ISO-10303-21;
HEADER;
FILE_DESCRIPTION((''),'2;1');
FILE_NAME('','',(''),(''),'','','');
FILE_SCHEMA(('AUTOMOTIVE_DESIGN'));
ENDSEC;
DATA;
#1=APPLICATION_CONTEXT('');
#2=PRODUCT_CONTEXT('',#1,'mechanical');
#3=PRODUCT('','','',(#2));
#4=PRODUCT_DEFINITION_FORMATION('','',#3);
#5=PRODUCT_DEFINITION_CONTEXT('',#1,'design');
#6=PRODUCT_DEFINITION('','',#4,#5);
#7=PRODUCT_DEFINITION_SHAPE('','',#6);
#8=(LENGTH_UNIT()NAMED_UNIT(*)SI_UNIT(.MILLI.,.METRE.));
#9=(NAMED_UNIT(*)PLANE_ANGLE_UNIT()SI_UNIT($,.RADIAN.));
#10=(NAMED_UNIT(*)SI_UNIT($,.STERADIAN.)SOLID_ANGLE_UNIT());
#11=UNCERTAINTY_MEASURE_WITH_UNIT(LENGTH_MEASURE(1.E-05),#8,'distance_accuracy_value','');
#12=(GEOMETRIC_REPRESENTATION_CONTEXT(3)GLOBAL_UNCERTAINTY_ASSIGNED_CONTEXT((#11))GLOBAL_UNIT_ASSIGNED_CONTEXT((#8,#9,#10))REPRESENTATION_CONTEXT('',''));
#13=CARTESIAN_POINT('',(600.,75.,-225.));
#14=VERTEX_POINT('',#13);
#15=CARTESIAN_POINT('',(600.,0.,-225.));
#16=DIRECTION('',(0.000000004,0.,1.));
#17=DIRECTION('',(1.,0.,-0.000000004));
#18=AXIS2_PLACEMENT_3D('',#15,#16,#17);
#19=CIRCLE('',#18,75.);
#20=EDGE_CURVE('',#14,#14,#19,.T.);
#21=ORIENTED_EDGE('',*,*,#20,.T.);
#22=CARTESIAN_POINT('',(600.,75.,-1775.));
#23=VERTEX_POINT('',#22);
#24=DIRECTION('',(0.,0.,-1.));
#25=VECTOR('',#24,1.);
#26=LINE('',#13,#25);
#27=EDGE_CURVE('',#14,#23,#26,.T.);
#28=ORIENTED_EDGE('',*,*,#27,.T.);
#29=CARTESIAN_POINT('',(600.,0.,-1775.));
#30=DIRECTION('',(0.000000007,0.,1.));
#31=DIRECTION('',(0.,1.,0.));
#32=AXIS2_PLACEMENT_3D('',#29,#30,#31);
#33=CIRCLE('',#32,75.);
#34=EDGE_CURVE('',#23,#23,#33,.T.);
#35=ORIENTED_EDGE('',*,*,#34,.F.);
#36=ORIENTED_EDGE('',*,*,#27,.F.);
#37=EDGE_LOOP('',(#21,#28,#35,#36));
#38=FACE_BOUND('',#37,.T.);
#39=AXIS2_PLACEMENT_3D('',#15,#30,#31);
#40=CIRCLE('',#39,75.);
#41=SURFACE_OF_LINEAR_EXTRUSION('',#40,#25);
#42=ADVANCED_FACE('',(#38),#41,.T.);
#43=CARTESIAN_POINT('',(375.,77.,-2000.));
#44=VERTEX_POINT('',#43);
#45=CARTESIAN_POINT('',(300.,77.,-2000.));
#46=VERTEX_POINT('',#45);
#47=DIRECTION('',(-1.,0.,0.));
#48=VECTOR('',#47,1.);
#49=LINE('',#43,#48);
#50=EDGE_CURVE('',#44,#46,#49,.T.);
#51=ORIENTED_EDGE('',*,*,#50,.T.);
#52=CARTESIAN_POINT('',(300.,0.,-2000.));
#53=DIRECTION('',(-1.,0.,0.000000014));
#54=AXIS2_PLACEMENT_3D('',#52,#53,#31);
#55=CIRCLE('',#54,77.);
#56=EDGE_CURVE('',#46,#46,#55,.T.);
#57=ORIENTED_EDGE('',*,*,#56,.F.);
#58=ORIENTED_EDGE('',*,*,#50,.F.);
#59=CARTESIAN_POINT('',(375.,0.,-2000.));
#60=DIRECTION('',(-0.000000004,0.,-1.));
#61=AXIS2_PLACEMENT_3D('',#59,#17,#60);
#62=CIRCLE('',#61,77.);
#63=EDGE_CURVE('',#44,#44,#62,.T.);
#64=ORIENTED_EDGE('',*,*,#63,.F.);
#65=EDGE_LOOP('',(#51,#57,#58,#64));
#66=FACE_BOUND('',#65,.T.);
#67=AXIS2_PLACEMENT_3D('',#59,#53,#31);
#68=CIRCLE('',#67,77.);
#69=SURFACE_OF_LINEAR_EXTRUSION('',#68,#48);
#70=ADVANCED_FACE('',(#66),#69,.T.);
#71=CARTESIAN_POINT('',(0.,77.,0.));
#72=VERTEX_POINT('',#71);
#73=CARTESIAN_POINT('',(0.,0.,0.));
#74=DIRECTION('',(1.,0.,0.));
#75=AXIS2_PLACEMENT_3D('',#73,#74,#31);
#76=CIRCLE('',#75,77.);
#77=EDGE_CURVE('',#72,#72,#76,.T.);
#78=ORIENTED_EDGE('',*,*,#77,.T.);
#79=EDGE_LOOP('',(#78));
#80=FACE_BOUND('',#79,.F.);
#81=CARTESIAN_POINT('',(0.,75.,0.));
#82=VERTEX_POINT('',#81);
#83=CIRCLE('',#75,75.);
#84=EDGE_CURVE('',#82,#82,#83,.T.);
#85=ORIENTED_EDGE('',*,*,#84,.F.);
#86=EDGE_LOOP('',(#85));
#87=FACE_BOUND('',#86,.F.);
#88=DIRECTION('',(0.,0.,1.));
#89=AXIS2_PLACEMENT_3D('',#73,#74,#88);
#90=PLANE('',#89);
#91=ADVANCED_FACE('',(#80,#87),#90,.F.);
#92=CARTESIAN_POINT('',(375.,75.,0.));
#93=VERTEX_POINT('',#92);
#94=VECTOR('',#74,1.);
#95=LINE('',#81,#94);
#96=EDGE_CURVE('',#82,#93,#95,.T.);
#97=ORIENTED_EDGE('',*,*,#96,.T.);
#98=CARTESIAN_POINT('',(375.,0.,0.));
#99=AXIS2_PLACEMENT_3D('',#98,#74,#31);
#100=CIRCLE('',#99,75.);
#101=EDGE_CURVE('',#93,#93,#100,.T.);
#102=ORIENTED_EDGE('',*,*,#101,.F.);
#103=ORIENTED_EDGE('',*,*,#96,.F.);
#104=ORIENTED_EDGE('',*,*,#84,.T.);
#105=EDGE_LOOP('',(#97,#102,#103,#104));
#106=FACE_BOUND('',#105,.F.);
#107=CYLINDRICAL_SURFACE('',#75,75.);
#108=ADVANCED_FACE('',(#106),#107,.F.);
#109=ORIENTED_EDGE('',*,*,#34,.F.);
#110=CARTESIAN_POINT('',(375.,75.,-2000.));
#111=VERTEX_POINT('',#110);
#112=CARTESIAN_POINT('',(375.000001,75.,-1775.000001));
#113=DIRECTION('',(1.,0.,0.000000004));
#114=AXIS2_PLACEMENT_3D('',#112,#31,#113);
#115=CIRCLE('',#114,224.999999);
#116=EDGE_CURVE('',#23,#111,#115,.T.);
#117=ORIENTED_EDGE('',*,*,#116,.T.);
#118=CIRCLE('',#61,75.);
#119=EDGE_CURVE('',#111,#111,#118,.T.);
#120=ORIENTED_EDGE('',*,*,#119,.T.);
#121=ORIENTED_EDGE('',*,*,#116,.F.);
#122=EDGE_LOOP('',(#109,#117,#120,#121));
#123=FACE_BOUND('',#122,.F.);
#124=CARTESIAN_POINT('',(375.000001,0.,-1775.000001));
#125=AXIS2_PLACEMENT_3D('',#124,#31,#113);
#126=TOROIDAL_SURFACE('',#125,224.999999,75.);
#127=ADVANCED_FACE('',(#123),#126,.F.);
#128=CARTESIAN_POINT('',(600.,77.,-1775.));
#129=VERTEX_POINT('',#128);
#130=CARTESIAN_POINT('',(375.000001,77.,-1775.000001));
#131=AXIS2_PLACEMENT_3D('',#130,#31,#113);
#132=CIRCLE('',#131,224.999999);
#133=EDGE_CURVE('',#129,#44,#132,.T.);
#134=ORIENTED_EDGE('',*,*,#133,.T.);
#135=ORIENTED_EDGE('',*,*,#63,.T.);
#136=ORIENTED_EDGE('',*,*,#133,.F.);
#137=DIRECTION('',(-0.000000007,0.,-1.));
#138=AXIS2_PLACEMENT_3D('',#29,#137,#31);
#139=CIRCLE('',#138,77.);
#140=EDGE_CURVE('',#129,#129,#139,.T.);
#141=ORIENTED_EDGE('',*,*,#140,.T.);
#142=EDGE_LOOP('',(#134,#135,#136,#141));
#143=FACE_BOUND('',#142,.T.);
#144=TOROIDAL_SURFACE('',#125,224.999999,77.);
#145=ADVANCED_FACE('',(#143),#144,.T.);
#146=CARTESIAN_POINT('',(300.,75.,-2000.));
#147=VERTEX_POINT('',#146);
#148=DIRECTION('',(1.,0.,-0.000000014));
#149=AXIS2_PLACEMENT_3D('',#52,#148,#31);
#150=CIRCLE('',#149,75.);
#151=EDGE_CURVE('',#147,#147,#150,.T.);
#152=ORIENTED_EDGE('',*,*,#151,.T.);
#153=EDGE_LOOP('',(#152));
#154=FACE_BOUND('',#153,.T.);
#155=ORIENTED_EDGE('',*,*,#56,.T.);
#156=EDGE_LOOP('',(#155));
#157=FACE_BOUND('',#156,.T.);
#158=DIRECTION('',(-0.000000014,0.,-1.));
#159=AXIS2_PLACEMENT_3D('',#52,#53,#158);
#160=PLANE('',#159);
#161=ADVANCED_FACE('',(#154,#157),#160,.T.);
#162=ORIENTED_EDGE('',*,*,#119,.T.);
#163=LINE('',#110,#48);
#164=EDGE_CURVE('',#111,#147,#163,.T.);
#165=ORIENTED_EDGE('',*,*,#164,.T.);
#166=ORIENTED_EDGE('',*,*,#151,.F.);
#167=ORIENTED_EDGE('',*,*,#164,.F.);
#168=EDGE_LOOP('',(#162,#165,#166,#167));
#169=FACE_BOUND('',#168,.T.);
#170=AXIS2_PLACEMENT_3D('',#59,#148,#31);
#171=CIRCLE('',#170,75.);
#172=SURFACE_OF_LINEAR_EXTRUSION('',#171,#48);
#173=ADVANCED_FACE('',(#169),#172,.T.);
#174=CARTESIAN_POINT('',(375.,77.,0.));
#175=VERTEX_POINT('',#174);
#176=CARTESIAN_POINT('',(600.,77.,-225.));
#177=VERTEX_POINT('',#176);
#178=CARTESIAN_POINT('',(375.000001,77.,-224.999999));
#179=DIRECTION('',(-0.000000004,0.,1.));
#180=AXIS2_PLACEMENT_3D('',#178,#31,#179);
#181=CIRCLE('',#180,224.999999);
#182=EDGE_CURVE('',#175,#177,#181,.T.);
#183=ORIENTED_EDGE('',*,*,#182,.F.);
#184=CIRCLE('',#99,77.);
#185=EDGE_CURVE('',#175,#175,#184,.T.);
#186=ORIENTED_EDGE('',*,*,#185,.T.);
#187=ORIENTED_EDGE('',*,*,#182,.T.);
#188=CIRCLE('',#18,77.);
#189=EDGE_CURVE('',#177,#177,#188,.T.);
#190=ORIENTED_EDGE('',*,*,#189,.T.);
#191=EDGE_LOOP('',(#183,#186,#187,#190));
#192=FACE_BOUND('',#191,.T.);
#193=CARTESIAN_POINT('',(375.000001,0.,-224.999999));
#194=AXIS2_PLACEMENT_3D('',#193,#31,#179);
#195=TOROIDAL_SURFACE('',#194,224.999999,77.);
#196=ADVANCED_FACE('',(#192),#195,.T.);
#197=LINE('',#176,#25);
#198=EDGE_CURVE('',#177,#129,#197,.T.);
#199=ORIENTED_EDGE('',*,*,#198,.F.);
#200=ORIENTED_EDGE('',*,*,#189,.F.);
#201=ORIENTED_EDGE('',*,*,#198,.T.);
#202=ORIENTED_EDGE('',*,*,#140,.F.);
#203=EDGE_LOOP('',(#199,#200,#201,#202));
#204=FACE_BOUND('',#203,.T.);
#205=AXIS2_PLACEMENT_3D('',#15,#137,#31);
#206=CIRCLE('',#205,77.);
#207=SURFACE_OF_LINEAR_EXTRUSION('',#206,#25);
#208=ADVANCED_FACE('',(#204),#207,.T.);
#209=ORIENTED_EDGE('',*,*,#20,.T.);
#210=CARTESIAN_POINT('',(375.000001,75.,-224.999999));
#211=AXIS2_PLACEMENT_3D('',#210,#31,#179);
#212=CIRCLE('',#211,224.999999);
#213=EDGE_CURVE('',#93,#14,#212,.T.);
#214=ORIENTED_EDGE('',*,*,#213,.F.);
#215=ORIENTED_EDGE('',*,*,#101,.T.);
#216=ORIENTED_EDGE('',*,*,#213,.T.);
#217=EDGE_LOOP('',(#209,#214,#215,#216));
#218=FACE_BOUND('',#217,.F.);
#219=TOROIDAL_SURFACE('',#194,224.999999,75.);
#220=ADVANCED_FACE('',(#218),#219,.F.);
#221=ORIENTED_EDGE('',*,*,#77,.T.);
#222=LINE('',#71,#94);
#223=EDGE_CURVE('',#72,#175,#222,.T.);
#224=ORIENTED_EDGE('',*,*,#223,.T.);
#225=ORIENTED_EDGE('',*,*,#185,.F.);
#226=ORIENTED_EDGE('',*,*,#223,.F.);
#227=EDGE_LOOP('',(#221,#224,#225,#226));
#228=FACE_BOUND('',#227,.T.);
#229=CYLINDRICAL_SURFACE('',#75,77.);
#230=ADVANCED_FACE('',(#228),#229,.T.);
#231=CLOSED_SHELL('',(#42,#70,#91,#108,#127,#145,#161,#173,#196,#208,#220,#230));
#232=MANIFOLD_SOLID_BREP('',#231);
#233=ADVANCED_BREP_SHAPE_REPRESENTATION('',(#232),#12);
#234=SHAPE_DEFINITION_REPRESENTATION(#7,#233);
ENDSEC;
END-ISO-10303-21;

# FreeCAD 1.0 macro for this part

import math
import FreeCAD as App
import Part
import Sketcher

V = App.Vector
Q = App.Units.Quantity

doc = App.newDocument("Part")
params = doc.addObject("Spreadsheet::Sheet", "Params")
for row, (alias, value) in enumerate([
    ("sketch1_diameter", "154 mm"),
    ("sketch1_diameter2", "150 mm"),
    ("sketch2_radius", "224.999999 mm"),
    ("sketch2_width", "375 mm"),
    ("sketch2_width2", "75 mm"),
    ("sketch2_height", "1550 mm"),
], start=1):
    params.set(f"A{row}", alias)
    params.set(f"B{row}", "=" + value)
    params.setAlias(f"B{row}", alias)

body = doc.addObject("PartDesign::Body", "Body")

# Sketch on YZ plane
sketch1 = doc.addObject("Sketcher::SketchObject", "Sketch")
body.addObject(sketch1)
sketch1.AttachmentSupport = (doc.YZ_Plane, [""])
sketch1.MapMode = "FlatFace"
sketch1.addGeometry([
    Part.Circle(V(0, 0, 0), V(0, 0, 1), 77),
    Part.Circle(V(0, 0, 0), V(0, 0, 1), 75),
], False)
sketch1.addConstraint([
    Sketcher.Constraint("Coincident", 0, 3, -1, 1),
    Sketcher.Constraint("Coincident", 1, 3, -1, 1),
    Sketcher.Constraint("Diameter", 0, Q("154 mm")),
    Sketcher.Constraint("Diameter", 1, Q("150 mm")),
])
sketch1.setExpression("Constraints[2]", "Params.sketch1_diameter")
sketch1.setExpression("Constraints[3]", "Params.sketch1_diameter2")

# Sketch on XZ plane
sketch2 = doc.addObject("Sketcher::SketchObject", "Sketch001")
body.addObject(sketch2)
sketch2.AttachmentSupport = (doc.XZ_Plane, [""])
sketch2.MapMode = "FlatFace"
sketch2.addGeometry([
    Part.LineSegment(V(0, 0, 0), V(375, 0, 0)),  # 0
    Part.ArcOfCircle(Part.Circle(V(375, -225, 0), V(0, 0, 1), 225), math.radians(0), math.radians(90)),  # 1
    Part.LineSegment(V(600, -225, 0), V(600, -1775, 0)),  # 2
    Part.ArcOfCircle(Part.Circle(V(375, -1775, 0), V(0, 0, 1), 225), math.radians(-90), math.radians(0)),  # 3
    Part.LineSegment(V(375, -2000, 0), V(300, -2000, 0)),  # 4
], False)
sketch2.addConstraint([
    Sketcher.Constraint("Tangent", 0, 2, 1, 2),
    Sketcher.Constraint("Tangent", 1, 1, 2, 1),
    Sketcher.Constraint("Tangent", 2, 2, 3, 2),
    Sketcher.Constraint("Tangent", 3, 1, 4, 1),
    Sketcher.Constraint("Horizontal", 0),
    Sketcher.Constraint("Vertical", 2),
    Sketcher.Constraint("Horizontal", 4),
    Sketcher.Constraint("Coincident", 0, 1, -1, 1),
    Sketcher.Constraint("Equal", 1, 3),
    Sketcher.Constraint("Radius", 1, Q("224.999999 mm")),
    Sketcher.Constraint("DistanceX", 0, 1, 0, 2, Q("375 mm")),
    Sketcher.Constraint("DistanceX", 4, 2, 4, 1, Q("75 mm")),
    Sketcher.Constraint("DistanceY", 2, 2, 2, 1, Q("1550 mm")),
])
sketch2.setExpression("Constraints[9]", "Params.sketch2_radius")
sketch2.setExpression("Constraints[10]", "Params.sketch2_width")
sketch2.setExpression("Constraints[11]", "Params.sketch2_width2")
sketch2.setExpression("Constraints[12]", "Params.sketch2_height")
doc.recompute()

additivepipe = doc.addObject("PartDesign::AdditivePipe", "AdditivePipe")
body.addObject(additivepipe)
additivepipe.Profile = sketch1
additivepipe.Spine = (sketch2, ["Edge1", "Edge2", "Edge3", "Edge4", "Edge5"])

doc.recompute()
